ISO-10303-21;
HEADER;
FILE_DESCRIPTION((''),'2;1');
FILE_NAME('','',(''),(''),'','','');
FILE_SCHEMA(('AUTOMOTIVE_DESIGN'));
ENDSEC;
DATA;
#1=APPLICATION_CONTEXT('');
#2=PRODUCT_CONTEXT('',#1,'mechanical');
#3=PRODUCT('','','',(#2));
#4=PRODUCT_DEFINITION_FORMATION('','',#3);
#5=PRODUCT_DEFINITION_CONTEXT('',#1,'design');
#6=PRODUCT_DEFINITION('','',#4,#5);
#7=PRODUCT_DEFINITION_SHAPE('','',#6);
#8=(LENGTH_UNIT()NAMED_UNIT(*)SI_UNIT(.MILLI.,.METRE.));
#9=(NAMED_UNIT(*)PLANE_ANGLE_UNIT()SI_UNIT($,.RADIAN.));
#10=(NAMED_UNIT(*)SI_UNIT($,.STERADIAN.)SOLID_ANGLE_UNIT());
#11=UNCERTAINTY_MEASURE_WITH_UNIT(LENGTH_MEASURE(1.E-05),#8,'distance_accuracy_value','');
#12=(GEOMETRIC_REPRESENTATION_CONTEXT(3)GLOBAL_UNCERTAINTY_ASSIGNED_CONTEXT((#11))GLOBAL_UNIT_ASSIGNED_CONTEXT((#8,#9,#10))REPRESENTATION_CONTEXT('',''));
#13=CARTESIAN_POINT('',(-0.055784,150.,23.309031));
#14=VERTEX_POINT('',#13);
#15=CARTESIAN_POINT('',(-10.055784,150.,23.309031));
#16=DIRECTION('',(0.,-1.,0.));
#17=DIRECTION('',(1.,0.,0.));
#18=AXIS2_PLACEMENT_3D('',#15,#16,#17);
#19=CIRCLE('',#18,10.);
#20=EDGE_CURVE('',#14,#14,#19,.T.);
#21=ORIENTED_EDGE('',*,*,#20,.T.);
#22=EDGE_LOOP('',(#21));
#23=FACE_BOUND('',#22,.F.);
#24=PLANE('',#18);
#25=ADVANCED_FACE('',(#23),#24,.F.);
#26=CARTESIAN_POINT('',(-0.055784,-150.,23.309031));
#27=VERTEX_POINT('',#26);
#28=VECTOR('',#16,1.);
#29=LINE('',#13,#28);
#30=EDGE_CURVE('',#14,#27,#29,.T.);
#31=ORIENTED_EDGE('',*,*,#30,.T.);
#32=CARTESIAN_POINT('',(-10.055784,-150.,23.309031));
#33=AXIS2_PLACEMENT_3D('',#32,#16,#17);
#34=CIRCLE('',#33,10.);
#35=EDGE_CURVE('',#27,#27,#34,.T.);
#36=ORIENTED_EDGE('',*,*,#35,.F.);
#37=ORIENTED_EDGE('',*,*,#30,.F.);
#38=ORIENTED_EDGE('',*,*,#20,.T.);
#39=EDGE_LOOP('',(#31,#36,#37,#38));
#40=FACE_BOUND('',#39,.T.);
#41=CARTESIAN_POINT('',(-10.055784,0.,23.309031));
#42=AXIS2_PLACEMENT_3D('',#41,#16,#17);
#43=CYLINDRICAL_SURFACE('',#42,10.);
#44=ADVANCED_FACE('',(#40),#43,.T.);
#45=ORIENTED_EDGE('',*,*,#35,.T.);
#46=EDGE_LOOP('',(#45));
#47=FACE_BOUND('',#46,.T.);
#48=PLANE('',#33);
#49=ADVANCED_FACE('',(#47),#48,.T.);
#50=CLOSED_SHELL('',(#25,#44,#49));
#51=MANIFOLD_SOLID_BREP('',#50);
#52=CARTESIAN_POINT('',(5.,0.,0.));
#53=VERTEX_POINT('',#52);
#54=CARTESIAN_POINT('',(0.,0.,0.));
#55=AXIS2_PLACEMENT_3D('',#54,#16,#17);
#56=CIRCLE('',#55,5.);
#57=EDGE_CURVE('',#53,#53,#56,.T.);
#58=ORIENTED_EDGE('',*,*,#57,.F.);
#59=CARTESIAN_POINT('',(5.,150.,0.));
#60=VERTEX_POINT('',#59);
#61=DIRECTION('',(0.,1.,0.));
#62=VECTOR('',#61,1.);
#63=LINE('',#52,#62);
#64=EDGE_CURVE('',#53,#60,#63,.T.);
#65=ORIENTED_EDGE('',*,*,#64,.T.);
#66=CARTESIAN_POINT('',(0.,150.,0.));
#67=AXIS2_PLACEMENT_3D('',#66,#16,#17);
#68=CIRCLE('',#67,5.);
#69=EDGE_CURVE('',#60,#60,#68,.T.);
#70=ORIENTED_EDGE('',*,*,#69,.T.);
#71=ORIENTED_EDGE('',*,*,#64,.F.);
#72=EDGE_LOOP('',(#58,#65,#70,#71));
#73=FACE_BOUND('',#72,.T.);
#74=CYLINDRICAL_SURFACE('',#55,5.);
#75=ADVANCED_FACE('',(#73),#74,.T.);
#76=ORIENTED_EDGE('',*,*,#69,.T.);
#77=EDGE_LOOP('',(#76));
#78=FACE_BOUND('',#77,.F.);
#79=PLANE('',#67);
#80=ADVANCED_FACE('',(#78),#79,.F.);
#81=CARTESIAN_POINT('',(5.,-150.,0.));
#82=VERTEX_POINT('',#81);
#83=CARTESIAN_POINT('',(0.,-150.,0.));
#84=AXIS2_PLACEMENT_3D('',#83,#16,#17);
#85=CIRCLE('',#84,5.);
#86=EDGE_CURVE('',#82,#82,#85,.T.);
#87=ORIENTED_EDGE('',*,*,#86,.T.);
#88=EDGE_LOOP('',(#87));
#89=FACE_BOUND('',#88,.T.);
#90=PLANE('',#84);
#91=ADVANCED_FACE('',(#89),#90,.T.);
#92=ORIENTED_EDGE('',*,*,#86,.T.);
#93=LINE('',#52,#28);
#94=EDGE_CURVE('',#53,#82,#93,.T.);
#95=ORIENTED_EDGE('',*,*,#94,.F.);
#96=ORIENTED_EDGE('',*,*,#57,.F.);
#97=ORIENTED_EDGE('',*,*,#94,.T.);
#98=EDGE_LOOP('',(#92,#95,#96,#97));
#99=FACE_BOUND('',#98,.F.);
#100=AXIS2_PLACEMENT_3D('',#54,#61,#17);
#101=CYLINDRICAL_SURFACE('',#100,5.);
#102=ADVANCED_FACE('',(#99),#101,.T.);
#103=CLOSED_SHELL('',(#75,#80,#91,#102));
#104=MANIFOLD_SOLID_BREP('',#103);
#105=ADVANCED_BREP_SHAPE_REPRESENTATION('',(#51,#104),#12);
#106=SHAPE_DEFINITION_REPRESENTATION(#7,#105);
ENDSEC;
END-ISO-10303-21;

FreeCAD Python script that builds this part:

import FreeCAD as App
import Part
import Sketcher
Q = App.Units.Quantity

doc = App.newDocument("Part")
body = doc.addObject("PartDesign::Body", "Body")
body.AllowCompound = True

sketch1 = body.newObject("Sketcher::SketchObject", "Sketch")
sketch1.AttachmentSupport = (doc.getObject("XZ_Plane"), [""])
sketch1.MapMode = "FlatFace"
sketch1.addGeometry([
    Part.Circle(App.Vector(0, 0, 0), App.Vector(0, 0, 1), 5),
    Part.Circle(App.Vector(-10.055784, 23.309031, 0), App.Vector(0, 0, 1), 10),
], False)
sketch1.addConstraint([
    Sketcher.Constraint("Coincident", 0, 3, -1, 1),
    Sketcher.Constraint("Diameter", 0, Q("10 mm")),
    Sketcher.Constraint("Diameter", 1, Q("20 mm")),
    Sketcher.Constraint("DistanceY", -1, 1, 1, 3, Q("23.309031 mm")),
    Sketcher.Constraint("DistanceX", 1, 3, -1, 1, Q("10.055784 mm")),
])
pad1 = body.newObject("PartDesign::Pad", "Pad")
pad1.Profile = sketch1
pad1.Length = 300
pad1.Midplane = True

doc.recompute()
